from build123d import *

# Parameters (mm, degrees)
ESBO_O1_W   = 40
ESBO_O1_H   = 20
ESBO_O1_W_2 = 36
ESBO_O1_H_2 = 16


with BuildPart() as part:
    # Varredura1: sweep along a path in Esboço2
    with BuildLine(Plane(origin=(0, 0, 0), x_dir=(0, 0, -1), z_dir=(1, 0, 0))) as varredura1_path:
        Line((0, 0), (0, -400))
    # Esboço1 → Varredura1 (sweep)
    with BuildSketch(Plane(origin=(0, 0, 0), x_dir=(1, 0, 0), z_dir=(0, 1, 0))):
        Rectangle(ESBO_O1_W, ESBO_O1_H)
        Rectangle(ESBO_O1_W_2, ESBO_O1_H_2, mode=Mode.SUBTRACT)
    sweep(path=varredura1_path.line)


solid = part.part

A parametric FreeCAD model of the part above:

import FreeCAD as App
import Part
import Sketcher
Q = App.Units.Quantity


def add_polygon(sketch, points):
    """Adds a closed chain of lines whose ends are joined by coincident constraints."""
    first, n = sketch.GeometryCount, len(points)
    for a, b in zip(points, points[1:] + points[:1]):
        sketch.addGeometry(Part.LineSegment(App.Vector(*a, 0), App.Vector(*b, 0)), False)
    for i in range(n):
        sketch.addConstraint(Sketcher.Constraint("Coincident", first + i, 2, first + (i + 1) % n, 1))

doc = App.newDocument("Part")
body = doc.addObject("PartDesign::Body", "Body")

# Sketch on XZ plane
sketch1 = body.newObject("Sketcher::SketchObject", "Sketch")
sketch1.AttachmentSupport = (doc.getObject("XZ_Plane"), [""])
sketch1.MapMode = "FlatFace"
add_polygon(sketch1, [(-20, -10), (-20, 10), (20, 10), (20, -10)])  # lines 0-3
add_polygon(sketch1, [(18, 8), (-18, 8), (-18, -8), (18, -8)])  # lines 4-7
sketch1.addConstraint(Sketcher.Constraint("Vertical", 0))
sketch1.addConstraint(Sketcher.Constraint("Horizontal", 1))
sketch1.addConstraint(Sketcher.Constraint("Vertical", 2))
sketch1.addConstraint(Sketcher.Constraint("Horizontal", 3))
sketch1.addConstraint(Sketcher.Constraint("Horizontal", 4))
sketch1.addConstraint(Sketcher.Constraint("Vertical", 5))
sketch1.addConstraint(Sketcher.Constraint("Horizontal", 6))
sketch1.addConstraint(Sketcher.Constraint("Vertical", 7))
sketch1.addConstraint(Sketcher.Constraint("Symmetric", 0, 2, 2, 2, -1, 1))
sketch1.addConstraint(Sketcher.Constraint("Symmetric", 4, 2, 6, 2, -1, 1))
sketch1.addConstraint(Sketcher.Constraint("DistanceX", 1, 1, 1, 2, Q("40 mm")))
sketch1.addConstraint(Sketcher.Constraint("DistanceX", 4, 2, 4, 1, Q("36 mm")))
sketch1.addConstraint(Sketcher.Constraint("DistanceY", 0, 1, 0, 2, Q("20 mm")))
sketch1.addConstraint(Sketcher.Constraint("DistanceY", 5, 2, 5, 1, Q("16 mm")))

# Sketch on XY plane
sketch2 = body.newObject("Sketcher::SketchObject", "Sketch001")
sketch2.AttachmentSupport = (doc.getObject("XY_Plane"), [""])
sketch2.MapMode = "FlatFace"
sketch2.addGeometry(Part.LineSegment(App.Vector(0, 0, 0), App.Vector(0, -400, 0)), False)
sketch2.addConstraint(Sketcher.Constraint("Vertical", 0))
sketch2.addConstraint(Sketcher.Constraint("Coincident", 0, 1, -1, 1))
sketch2.addConstraint(Sketcher.Constraint("DistanceY", 0, 2, 0, 1, Q("400 mm")))
doc.recompute()

additivepipe = body.newObject("PartDesign::AdditivePipe", "AdditivePipe")
additivepipe.Profile = sketch1
additivepipe.Spine = (sketch2, ["Edge1"])

doc.recompute()
